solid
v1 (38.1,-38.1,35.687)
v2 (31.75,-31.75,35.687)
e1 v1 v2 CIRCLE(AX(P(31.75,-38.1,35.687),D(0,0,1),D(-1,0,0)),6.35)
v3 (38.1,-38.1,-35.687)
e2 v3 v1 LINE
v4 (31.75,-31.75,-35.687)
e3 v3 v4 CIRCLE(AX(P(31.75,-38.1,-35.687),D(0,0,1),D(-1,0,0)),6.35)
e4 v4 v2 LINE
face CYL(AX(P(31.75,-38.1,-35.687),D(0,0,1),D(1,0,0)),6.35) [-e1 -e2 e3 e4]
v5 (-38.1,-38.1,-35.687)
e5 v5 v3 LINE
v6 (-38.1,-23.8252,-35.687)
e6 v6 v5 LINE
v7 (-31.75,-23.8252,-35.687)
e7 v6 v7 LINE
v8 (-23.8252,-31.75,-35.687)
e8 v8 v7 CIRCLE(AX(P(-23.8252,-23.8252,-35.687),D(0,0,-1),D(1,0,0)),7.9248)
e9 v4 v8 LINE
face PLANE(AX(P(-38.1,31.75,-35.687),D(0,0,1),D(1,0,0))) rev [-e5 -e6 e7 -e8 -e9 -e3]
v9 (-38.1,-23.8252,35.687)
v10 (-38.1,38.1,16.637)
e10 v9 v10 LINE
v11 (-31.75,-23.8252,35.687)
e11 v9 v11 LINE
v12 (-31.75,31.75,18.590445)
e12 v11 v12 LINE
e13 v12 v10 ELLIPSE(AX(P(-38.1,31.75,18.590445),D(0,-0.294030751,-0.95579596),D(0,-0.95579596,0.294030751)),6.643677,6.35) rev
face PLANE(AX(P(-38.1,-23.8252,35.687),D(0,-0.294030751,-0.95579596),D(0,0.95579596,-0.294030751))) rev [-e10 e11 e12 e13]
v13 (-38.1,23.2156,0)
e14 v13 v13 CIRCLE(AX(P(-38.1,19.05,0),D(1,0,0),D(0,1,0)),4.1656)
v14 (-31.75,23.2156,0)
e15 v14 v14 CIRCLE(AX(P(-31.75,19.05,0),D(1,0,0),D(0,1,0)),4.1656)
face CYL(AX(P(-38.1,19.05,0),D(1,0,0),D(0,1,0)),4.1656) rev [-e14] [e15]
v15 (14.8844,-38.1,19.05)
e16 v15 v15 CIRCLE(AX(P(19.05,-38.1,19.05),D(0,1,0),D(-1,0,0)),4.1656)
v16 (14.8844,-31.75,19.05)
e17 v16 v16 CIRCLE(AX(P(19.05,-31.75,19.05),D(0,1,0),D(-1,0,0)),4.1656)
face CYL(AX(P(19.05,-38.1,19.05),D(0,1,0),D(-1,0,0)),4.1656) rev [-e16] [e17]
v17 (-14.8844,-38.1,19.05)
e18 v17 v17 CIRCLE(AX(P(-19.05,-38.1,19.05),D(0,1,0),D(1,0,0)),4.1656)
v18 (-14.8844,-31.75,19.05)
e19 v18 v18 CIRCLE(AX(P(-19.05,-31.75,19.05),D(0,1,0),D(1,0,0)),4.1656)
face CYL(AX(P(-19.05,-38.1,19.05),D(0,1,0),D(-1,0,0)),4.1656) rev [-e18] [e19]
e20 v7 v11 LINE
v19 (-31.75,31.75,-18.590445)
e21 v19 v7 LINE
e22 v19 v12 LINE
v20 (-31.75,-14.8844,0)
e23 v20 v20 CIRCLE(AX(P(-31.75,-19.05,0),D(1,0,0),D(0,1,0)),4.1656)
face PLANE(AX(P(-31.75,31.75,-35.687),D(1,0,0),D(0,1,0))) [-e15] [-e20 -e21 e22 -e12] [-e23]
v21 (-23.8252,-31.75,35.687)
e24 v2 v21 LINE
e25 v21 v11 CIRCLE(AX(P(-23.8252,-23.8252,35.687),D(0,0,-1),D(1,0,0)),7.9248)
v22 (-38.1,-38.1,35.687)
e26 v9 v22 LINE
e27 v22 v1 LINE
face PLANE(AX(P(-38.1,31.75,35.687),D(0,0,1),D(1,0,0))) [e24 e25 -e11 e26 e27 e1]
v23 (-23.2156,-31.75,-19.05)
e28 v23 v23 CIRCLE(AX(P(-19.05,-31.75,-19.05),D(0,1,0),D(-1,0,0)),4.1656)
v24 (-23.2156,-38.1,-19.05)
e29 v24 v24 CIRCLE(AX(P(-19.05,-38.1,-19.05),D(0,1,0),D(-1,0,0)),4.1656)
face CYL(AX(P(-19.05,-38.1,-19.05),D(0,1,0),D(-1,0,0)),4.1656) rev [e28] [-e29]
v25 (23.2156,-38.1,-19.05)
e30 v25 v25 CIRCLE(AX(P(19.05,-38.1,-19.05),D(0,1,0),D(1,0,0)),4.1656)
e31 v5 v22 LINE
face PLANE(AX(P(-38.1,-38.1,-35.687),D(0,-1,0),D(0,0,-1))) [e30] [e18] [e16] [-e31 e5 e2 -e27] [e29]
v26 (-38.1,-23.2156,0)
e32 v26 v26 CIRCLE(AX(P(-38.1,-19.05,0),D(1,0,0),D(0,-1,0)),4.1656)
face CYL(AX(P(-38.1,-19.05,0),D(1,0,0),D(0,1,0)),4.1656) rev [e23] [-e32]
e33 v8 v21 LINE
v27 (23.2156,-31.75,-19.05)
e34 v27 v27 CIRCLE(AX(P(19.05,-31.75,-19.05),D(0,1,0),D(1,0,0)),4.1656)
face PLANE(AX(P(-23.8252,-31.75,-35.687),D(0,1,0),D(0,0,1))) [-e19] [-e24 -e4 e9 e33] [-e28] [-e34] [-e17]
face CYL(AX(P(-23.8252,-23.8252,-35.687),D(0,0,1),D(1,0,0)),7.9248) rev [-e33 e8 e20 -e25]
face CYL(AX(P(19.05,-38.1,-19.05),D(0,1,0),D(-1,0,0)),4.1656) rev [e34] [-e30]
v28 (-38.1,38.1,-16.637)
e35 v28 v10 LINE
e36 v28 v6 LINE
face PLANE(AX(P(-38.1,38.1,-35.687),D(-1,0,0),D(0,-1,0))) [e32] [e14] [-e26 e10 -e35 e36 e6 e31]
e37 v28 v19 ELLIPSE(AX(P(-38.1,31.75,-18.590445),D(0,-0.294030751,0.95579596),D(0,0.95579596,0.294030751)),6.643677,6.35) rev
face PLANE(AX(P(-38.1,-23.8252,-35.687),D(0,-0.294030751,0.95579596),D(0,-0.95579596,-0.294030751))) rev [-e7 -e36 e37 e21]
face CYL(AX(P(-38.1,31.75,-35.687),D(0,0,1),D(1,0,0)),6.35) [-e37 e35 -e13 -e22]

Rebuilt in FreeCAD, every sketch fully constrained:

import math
import FreeCAD as App
import Part
import Sketcher

V = App.Vector
Q = App.Units.Quantity


def add_polygon(sketch, points):
    """Adds a closed chain of lines whose ends are joined by coincident constraints."""
    first, n = sketch.GeometryCount, len(points)
    for a, b in zip(points, points[1:] + points[:1]):
        sketch.addGeometry(Part.LineSegment(App.Vector(*a, 0), App.Vector(*b, 0)), False)
    for i in range(n):
        sketch.addConstraint(Sketcher.Constraint("Coincident", first + i, 2, first + (i + 1) % n, 1))

doc = App.newDocument("Part")
params = doc.addObject("Spreadsheet::Sheet", "Params")
for row, (alias, value) in enumerate([
    ("sketch1_width", "3 in"),
    ("sketch1_radius", "0.25 in"),
    ("sketch1_radius2", "0.312 in"),
    ("pad1_length", "1.405 in"),
    ("pad1_length2", "1.405 in"),
    ("sketch2_height", "0.75 in"),
    ("sketch2_width", "2.438 in"),
    ("sketch3_diameter", "0.328 in"),
    ("sketch4_diameter", "0.328 in"),
], start=1):
    params.set(f"A{row}", alias)
    params.set(f"B{row}", "=" + value)
    params.setAlias(f"B{row}", alias)

body = doc.addObject("PartDesign::Body", "Body")

# Sketch on XY plane
sketch1 = body.newObject("Sketcher::SketchObject", "Sketch")
sketch1.AttachmentSupport = (doc.getObject("XY_Plane"), [""])
sketch1.MapMode = "FlatFace"
sketch1.addGeometry(Part.LineSegment(V(-38, 38, 0), V(-38, -38, 0)), False)
sketch1.addGeometry(Part.LineSegment(V(-38, -38, 0), V(38, -38, 0)), False)
sketch1.addGeometry(Part.ArcOfCircle(Part.Circle(V(32, -38, 0), V(0, 0, 1), 6), math.radians(0), math.radians(90)), False)
sketch1.addGeometry(Part.LineSegment(V(32, -32, 0), V(-24, -32, 0)), False)
sketch1.addGeometry(Part.ArcOfCircle(Part.Circle(V(-24, -24, 0), V(0, 0, 1), 8), math.radians(180), math.radians(270)), False)
sketch1.addGeometry(Part.LineSegment(V(-32, -24, 0), V(-32, 32, 0)), False)
sketch1.addGeometry(Part.ArcOfCircle(Part.Circle(V(-38, 32, 0), V(0, 0, 1), 6), math.radians(0), math.radians(90)), False)
sketch1.addConstraint(Sketcher.Constraint("Coincident", 0, 2, 1, 1))
sketch1.addConstraint(Sketcher.Constraint("Coincident", 1, 2, 2, 1))
sketch1.addConstraint(Sketcher.Constraint("Tangent", 2, 2, 3, 1))
sketch1.addConstraint(Sketcher.Constraint("Tangent", 3, 2, 4, 2))
sketch1.addConstraint(Sketcher.Constraint("Tangent", 4, 1, 5, 1))
sketch1.addConstraint(Sketcher.Constraint("Tangent", 5, 2, 6, 1))
sketch1.addConstraint(Sketcher.Constraint("Coincident", 6, 2, 0, 1))
sketch1.addConstraint(Sketcher.Constraint("Vertical", 0))
sketch1.addConstraint(Sketcher.Constraint("Horizontal", 1))
sketch1.addConstraint(Sketcher.Constraint("Horizontal", 3))
sketch1.addConstraint(Sketcher.Constraint("Vertical", 5))
sketch1.addConstraint(Sketcher.Constraint("Equal", 2, 6))
sketch1.addConstraint(Sketcher.Constraint("Symmetric", 2, 2, 5, 2, -1, 1))
sketch1.addConstraint(Sketcher.Constraint("Symmetric", 1, 2, 6, 2, -1, 1))
sketch1.addConstraint(Sketcher.Constraint("Equal", 1, 0))
sketch1.addConstraint(Sketcher.Constraint("DistanceX", 1, 1, 1, 2, Q("3 in")))
sketch1.addConstraint(Sketcher.Constraint("Radius", 2, Q("0.25 in")))
sketch1.addConstraint(Sketcher.Constraint("Radius", 4, Q("0.312 in")))
sketch1.setExpression("Constraints[15]", "Params.sketch1_width")
sketch1.setExpression("Constraints[16]", "Params.sketch1_radius")
sketch1.setExpression("Constraints[17]", "Params.sketch1_radius2")
pad1 = body.newObject("PartDesign::Pad", "Pad")
pad1.Profile = sketch1
pad1.Type = "TwoLengths"
pad1.setExpression("Length", "Params.pad1_length")
pad1.setExpression("Length2", "Params.pad1_length2")

# Sketch on YZ plane
sketch2 = body.newObject("Sketcher::SketchObject", "Sketch001")
sketch2.AttachmentSupport = (doc.getObject("YZ_Plane"), [""])
sketch2.MapMode = "FlatFace"
sketch2.AttachmentOffset = App.Placement(V(0, 0, -1.25 * 25.4), App.Rotation())
add_polygon(sketch2, [(-24, 36), (38, 17), (38, 36)])  # lines 0-2
add_polygon(sketch2, [(38, -36), (38, -17), (-24, -36)])  # lines 3-5
sketch2.addConstraint(Sketcher.Constraint("Vertical", 1))
sketch2.addConstraint(Sketcher.Constraint("Horizontal", 2))
sketch2.addConstraint(Sketcher.Constraint("Vertical", 3))
sketch2.addConstraint(Sketcher.Constraint("Horizontal", 5))
sketch2.addConstraint(Sketcher.Constraint("Symmetric", 0, 2, 3, 2, -1))
sketch2.addConstraint(Sketcher.Constraint("Symmetric", 2, 2, 4, 2, -1))
sketch2.addConstraint(Sketcher.Constraint("DistanceY", 1, 1, 1, 2, Q("0.75 in")))
sketch2.addConstraint(Sketcher.Constraint("DistanceX", -1, 1, 0, 2, Q("1.5 in")))
sketch2.addConstraint(Sketcher.Constraint("DistanceX", 2, 2, 2, 1, Q("2.438 in")))
sketch2.addConstraint(Sketcher.Constraint("DistanceY", 3, 2, 0, 2, Q("1.31 in")))
sketch2.setExpression("Constraints[12]", "Params.sketch2_height")
sketch2.setExpression("Constraints[14]", "Params.sketch2_width")
pocket1 = body.newObject("PartDesign::Pocket", "Pocket")
pocket1.Profile = sketch2
pocket1.Type = "ThroughAll"
pocket1.Midplane = True

# Sketch on YZ plane
sketch3 = body.newObject("Sketcher::SketchObject", "Sketch002")
sketch3.AttachmentSupport = (doc.getObject("YZ_Plane"), [""])
sketch3.MapMode = "FlatFace"
sketch3.AttachmentOffset = App.Placement(V(0, 0, -1.25 * 25.4), App.Rotation())
sketch3.addGeometry(Part.Circle(V(19.1, 0, 0), V(0, 0, 1), 4.2), False)
sketch3.addGeometry(Part.Circle(V(-19.1, 0, 0), V(0, 0, 1), 4.2), False)
sketch3.addConstraint(Sketcher.Constraint("Equal", 0, 1))
sketch3.addConstraint(Sketcher.Constraint("Symmetric", 0, 3, 1, 3, -1, 1))
sketch3.addConstraint(Sketcher.Constraint("PointOnObject", 0, 3, -1))
sketch3.addConstraint(Sketcher.Constraint("Diameter", 0, Q("0.328 in")))
sketch3.addConstraint(Sketcher.Constraint("DistanceX", 1, 3, 0, 3, Q("1.5 in")))
sketch3.setExpression("Constraints[3]", "Params.sketch3_diameter")
pocket2 = body.newObject("PartDesign::Pocket", "Pocket001")
pocket2.Profile = sketch3
pocket2.Type = "ThroughAll"
pocket2.Midplane = True

# Sketch on XZ plane
sketch4 = body.newObject("Sketcher::SketchObject", "Sketch003")
sketch4.AttachmentSupport = (doc.getObject("XZ_Plane"), [""])
sketch4.MapMode = "FlatFace"
sketch4.AttachmentOffset = App.Placement(V(0, 0, 1.25 * 25.4), App.Rotation())
sketch4.addGeometry(Part.Circle(V(-19.1, -19.1, 0), V(0, 0, 1), 4.2), False)
sketch4.addGeometry(Part.Circle(V(19.1, -19.1, 0), V(0, 0, 1), 4.2), False)
sketch4.addGeometry(Part.Circle(V(19.1, 19.1, 0), V(0, 0, 1), 4.2), False)
sketch4.addGeometry(Part.Circle(V(-19.1, 19.1, 0), V(0, 0, 1), 4.2), False)
sketch4.addConstraint(Sketcher.Constraint("Equal", 0, 1))
sketch4.addConstraint(Sketcher.Constraint("Equal", 1, 2))
sketch4.addConstraint(Sketcher.Constraint("Equal", 2, 3))
sketch4.addConstraint(Sketcher.Constraint("Symmetric", 0, 3, 2, 3, -1, 1))
sketch4.addConstraint(Sketcher.Constraint("Symmetric", 1, 3, 3, 3, -1, 1))
sketch4.addConstraint(Sketcher.Constraint("Symmetric", 0, 3, 1, 3, -2))
sketch4.addConstraint(Sketcher.Constraint("Diameter", 0, Q("0.328 in")))
sketch4.addConstraint(Sketcher.Constraint("DistanceX", 0, 3, 1, 3, Q("1.5 in")))
sketch4.addConstraint(Sketcher.Constraint("DistanceY", 1, 3, 2, 3, Q("1.5 in")))
sketch4.setExpression("Constraints[6]", "Params.sketch4_diameter")
pocket3 = body.newObject("PartDesign::Pocket", "Pocket002")
pocket3.Profile = sketch4
pocket3.Type = "ThroughAll"
pocket3.Reversed = True

doc.recompute()
